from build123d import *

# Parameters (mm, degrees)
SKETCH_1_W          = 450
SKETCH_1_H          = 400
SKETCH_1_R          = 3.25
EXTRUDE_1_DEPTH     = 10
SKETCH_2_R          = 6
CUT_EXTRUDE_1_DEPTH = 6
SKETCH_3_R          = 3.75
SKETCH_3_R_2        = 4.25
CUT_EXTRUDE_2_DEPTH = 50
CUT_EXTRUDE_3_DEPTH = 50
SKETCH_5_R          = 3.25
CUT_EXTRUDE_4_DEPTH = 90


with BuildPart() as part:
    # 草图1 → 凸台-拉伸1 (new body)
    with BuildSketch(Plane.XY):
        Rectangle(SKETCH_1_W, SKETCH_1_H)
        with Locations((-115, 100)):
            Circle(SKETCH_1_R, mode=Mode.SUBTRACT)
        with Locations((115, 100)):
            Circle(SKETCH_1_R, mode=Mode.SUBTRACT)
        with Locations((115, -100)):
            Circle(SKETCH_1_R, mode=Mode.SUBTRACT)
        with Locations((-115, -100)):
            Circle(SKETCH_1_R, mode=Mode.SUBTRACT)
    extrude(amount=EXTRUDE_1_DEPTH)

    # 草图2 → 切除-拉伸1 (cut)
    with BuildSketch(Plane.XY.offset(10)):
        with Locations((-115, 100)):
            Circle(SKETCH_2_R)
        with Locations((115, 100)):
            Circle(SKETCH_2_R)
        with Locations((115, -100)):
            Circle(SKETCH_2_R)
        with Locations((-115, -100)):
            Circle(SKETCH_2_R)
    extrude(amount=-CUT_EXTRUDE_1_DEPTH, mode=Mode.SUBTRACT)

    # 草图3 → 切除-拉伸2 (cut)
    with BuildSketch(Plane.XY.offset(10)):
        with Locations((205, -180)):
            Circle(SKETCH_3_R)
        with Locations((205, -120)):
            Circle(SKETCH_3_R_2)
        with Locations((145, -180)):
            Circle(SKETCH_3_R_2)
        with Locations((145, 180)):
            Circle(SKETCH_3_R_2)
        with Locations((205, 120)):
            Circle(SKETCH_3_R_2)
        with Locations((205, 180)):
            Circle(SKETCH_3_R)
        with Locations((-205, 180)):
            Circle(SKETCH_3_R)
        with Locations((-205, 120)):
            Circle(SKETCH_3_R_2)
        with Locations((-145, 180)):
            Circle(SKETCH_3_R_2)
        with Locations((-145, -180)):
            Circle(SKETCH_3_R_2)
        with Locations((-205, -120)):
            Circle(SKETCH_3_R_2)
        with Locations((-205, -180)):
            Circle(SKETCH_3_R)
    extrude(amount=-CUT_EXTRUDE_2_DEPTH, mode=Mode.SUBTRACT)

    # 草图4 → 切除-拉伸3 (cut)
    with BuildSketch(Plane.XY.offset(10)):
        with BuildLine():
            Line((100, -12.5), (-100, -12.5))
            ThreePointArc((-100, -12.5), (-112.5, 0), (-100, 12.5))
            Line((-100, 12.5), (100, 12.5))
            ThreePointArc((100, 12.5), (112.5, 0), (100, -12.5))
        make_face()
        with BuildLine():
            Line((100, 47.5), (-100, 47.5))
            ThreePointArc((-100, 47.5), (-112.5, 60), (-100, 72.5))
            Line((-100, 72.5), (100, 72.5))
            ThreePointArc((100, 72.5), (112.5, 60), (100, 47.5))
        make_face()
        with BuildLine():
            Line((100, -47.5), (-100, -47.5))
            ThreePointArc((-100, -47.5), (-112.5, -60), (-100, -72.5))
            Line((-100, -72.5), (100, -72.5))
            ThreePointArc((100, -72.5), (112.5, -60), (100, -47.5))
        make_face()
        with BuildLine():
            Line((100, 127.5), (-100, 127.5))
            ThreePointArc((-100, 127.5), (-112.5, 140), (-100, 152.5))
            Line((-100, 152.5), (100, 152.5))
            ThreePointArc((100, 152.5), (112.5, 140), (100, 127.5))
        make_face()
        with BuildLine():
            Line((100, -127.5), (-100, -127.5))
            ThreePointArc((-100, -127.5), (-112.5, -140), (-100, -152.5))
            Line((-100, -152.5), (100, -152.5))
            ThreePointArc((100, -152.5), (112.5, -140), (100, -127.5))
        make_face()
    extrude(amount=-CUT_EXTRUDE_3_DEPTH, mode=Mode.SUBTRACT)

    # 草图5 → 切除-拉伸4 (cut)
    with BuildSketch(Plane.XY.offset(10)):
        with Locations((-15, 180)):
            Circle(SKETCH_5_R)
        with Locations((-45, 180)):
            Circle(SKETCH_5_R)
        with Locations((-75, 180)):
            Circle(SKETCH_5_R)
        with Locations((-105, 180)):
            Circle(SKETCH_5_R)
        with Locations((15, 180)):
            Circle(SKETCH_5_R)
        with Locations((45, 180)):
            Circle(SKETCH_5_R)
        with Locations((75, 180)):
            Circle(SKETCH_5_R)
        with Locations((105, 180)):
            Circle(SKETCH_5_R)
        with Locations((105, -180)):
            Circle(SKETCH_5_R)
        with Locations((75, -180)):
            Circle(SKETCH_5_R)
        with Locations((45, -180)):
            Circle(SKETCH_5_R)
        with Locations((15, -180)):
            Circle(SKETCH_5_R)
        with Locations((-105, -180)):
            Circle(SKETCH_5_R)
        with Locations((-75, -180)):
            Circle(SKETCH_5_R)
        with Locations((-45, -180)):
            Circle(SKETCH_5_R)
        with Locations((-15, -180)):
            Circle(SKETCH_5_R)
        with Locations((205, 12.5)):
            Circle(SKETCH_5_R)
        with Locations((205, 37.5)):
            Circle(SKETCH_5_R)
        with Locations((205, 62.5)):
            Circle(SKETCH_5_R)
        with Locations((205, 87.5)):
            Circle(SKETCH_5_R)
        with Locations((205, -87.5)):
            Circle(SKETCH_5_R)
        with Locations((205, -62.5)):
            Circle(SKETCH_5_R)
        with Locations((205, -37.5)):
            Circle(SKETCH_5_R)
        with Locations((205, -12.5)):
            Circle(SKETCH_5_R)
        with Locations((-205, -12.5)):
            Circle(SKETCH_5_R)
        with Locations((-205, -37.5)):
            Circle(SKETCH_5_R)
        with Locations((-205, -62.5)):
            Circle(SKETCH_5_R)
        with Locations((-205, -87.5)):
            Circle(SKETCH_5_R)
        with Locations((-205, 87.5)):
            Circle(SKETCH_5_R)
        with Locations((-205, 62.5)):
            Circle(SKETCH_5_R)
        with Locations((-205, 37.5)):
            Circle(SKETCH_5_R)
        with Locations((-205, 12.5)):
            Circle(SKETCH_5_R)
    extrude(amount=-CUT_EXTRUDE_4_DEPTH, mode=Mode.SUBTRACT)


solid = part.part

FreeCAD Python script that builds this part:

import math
import FreeCAD as App
import Part
import Sketcher
from FreeCAD import Vector

doc = App.newDocument("Part")
body = doc.addObject("PartDesign::Body", "Body")

sketch1 = body.newObject("Sketcher::SketchObject", "Sketch")
sketch1.AttachmentSupport = (doc.getObject("XY_Plane"), [""])
sketch1.MapMode = "FlatFace"
sketch1.addGeometry([
    Part.LineSegment(Vector(-225, 200, 0), Vector(-225, -200, 0)),
    Part.LineSegment(Vector(-225, -200, 0), Vector(225, -200, 0)),
    Part.LineSegment(Vector(225, -200, 0), Vector(225, 200, 0)),
    Part.LineSegment(Vector(225, 200, 0), Vector(-225, 200, 0)),
    Part.Circle(Vector(-115, -100, 0), Vector(0, 0, 1), 3.2),
    Part.Circle(Vector(115, -100, 0), Vector(0, 0, 1), 3.2),
    Part.Circle(Vector(-115, 100, 0), Vector(0, 0, 1), 3.2),
    Part.Circle(Vector(115, 100, 0), Vector(0, 0, 1), 3.2),
], False)
sketch1.addConstraint([
    Sketcher.Constraint("Coincident", 0, 2, 1, 1),
    Sketcher.Constraint("Coincident", 1, 2, 2, 1),
    Sketcher.Constraint("Coincident", 2, 2, 3, 1),
    Sketcher.Constraint("Coincident", 3, 2, 0, 1),
    Sketcher.Constraint("Vertical", 0),
    Sketcher.Constraint("Horizontal", 1),
    Sketcher.Constraint("Vertical", 2),
    Sketcher.Constraint("Horizontal", 3),
    Sketcher.Constraint("Equal", 4, 5),
    Sketcher.Constraint("Equal", 5, 6),
    Sketcher.Constraint("Equal", 6, 7),
    Sketcher.Constraint("Symmetric", 5, 3, 6, 3, -1, 1),
    Sketcher.Constraint("Symmetric", 4, 3, 7, 3, -1, 1),
    Sketcher.Constraint("Symmetric", 0, 2, 2, 2, -1, 1),
    Sketcher.Constraint("Symmetric", 4, 3, 5, 3, -2),
    Sketcher.Constraint("Diameter", 4, 6.5),
    Sketcher.Constraint("DistanceX", 1, 1, 1, 2, 450.0),
    Sketcher.Constraint("DistanceY", 0, 2, 0, 1, 400.0),
    Sketcher.Constraint("DistanceX", 4, 3, -1, 1, 115.0),
    Sketcher.Constraint("DistanceY", 4, 3, -1, 1, 100.0),
])
pad1 = body.newObject("PartDesign::Pad", "Pad")
pad1.Profile = sketch1
pad1.Length = 10

sketch2 = body.newObject("Sketcher::SketchObject", "Sketch001")
sketch2.AttachmentSupport = (doc.getObject("XY_Plane"), [""])
sketch2.MapMode = "FlatFace"
sketch2.AttachmentOffset = App.Placement(Vector(0, 0, 10), App.Rotation())
sketch2.addGeometry([
    Part.Circle(Vector(-115, 100, 0), Vector(0, 0, 1), 6),
    Part.Circle(Vector(115, 100, 0), Vector(0, 0, 1), 6),
    Part.Circle(Vector(115, -100, 0), Vector(0, 0, 1), 6),
    Part.Circle(Vector(-115, -100, 0), Vector(0, 0, 1), 6),
], False)
sketch2.addConstraint([
    Sketcher.Constraint("Equal", 0, 1),
    Sketcher.Constraint("Equal", 1, 2),
    Sketcher.Constraint("Equal", 2, 3),
    Sketcher.Constraint("Symmetric", 0, 3, 2, 3, -1, 1),
    Sketcher.Constraint("Symmetric", 1, 3, 3, 3, -1, 1),
    Sketcher.Constraint("Symmetric", 0, 3, 1, 3, -2),
    Sketcher.Constraint("Diameter", 0, 12.0),
    Sketcher.Constraint("DistanceX", 0, 3, -1, 1, 115.0),
    Sketcher.Constraint("DistanceY", -1, 1, 0, 3, 100.0),
])
pocket1 = body.newObject("PartDesign::Pocket", "Pocket")
pocket1.Profile = sketch2
pocket1.Length = 6

sketch3 = body.newObject("Sketcher::SketchObject", "Sketch002")
sketch3.AttachmentSupport = (doc.getObject("XY_Plane"), [""])
sketch3.MapMode = "FlatFace"
sketch3.AttachmentOffset = App.Placement(Vector(0, 0, 10), App.Rotation())
sketch3.addGeometry([
    Part.Circle(Vector(205, -180, 0), Vector(0, 0, 1), 3.8),
    Part.Circle(Vector(205, -120, 0), Vector(0, 0, 1), 4.2),
    Part.Circle(Vector(145, -180, 0), Vector(0, 0, 1), 4.2),
    Part.Circle(Vector(145, 180, 0), Vector(0, 0, 1), 4.2),
    Part.Circle(Vector(205, 120, 0), Vector(0, 0, 1), 4.2),
    Part.Circle(Vector(205, 180, 0), Vector(0, 0, 1), 3.8),
    Part.Circle(Vector(-205, 180, 0), Vector(0, 0, 1), 3.8),
    Part.Circle(Vector(-205, 120, 0), Vector(0, 0, 1), 4.2),
    Part.Circle(Vector(-145, 180, 0), Vector(0, 0, 1), 4.2),
    Part.Circle(Vector(-145, -180, 0), Vector(0, 0, 1), 4.2),
    Part.Circle(Vector(-205, -120, 0), Vector(0, 0, 1), 4.2),
    Part.Circle(Vector(-205, -180, 0), Vector(0, 0, 1), 3.8),
], False)
sketch3.addConstraint([
    Sketcher.Constraint("Equal", 1, 2),
    Sketcher.Constraint("Equal", 2, 3),
    Sketcher.Constraint("Equal", 3, 4),
    Sketcher.Constraint("Equal", 0, 5),
    Sketcher.Constraint("Equal", 5, 6),
    Sketcher.Constraint("Equal", 4, 7),
    Sketcher.Constraint("Equal", 7, 8),
    Sketcher.Constraint("Equal", 8, 9),
    Sketcher.Constraint("Equal", 9, 10),
    Sketcher.Constraint("Equal", 6, 11),
    Sketcher.Constraint("Symmetric", 0, 3, 6, 3, -1, 1),
    Sketcher.Constraint("Symmetric", 1, 3, 7, 3, -1, 1),
    Sketcher.Constraint("Symmetric", 2, 3, 8, 3, -1, 1),
    Sketcher.Constraint("Symmetric", 3, 3, 9, 3, -1, 1),
    Sketcher.Constraint("Symmetric", 4, 3, 10, 3, -1, 1),
    Sketcher.Constraint("Symmetric", 5, 3, 11, 3, -1, 1),
    Sketcher.Constraint("Symmetric", 5, 3, 6, 3, -2),
    Sketcher.Constraint("Symmetric", 4, 3, 7, 3, -2),
    Sketcher.Constraint("Symmetric", 3, 3, 8, 3, -2),
    Sketcher.Constraint("Horizontal", 0, 3, 2, 3),
    Sketcher.Constraint("Vertical", 0, 3, 1, 3),
    Sketcher.Constraint("Diameter", 0, 7.5),
    Sketcher.Constraint("Diameter", 1, 8.5),
    Sketcher.Constraint("DistanceX", -1, 1, 0, 3, 205.0),
    Sketcher.Constraint("DistanceY", 0, 3, -1, 1, 180.0),
    Sketcher.Constraint("DistanceY", 1, 3, -1, 1, 120.0),
    Sketcher.Constraint("DistanceX", -1, 1, 2, 3, 145.0),
])
pocket2 = body.newObject("PartDesign::Pocket", "Pocket001")
pocket2.Profile = sketch3
pocket2.Length = 50

sketch4 = body.newObject("Sketcher::SketchObject", "Sketch003")
sketch4.AttachmentSupport = (doc.getObject("XY_Plane"), [""])
sketch4.MapMode = "FlatFace"
sketch4.AttachmentOffset = App.Placement(Vector(0, 0, 10), App.Rotation())
sketch4.addGeometry([
    Part.LineSegment(Vector(-100, -12, 0), Vector(100, -12, 0)),
    Part.ArcOfCircle(Part.Circle(Vector(100, 0, 0), Vector(0, 0, 1), 12), math.radians(-90), math.radians(90)),
    Part.LineSegment(Vector(100, 12, 0), Vector(-100, 12, 0)),
    Part.ArcOfCircle(Part.Circle(Vector(-100, 0, 0), Vector(0, 0, 1), 12), math.radians(90), math.radians(270)),
    Part.LineSegment(Vector(-100, 48, 0), Vector(100, 48, 0)),
    Part.ArcOfCircle(Part.Circle(Vector(100, 60, 0), Vector(0, 0, 1), 12), math.radians(-90), math.radians(90)),
    Part.LineSegment(Vector(100, 72, 0), Vector(-100, 72, 0)),
    Part.ArcOfCircle(Part.Circle(Vector(-100, 60, 0), Vector(0, 0, 1), 12), math.radians(90), math.radians(270)),
    Part.LineSegment(Vector(100, -48, 0), Vector(-100, -48, 0)),
    Part.ArcOfCircle(Part.Circle(Vector(-100, -60, 0), Vector(0, 0, 1), 12), math.radians(90), math.radians(270)),
    Part.LineSegment(Vector(-100, -72, 0), Vector(100, -72, 0)),
    Part.ArcOfCircle(Part.Circle(Vector(100, -60, 0), Vector(0, 0, 1), 12), math.radians(-90), math.radians(90)),
    Part.LineSegment(Vector(-100, 128, 0), Vector(100, 128, 0)),
    Part.ArcOfCircle(Part.Circle(Vector(100, 140, 0), Vector(0, 0, 1), 12), math.radians(-90), math.radians(90)),
    Part.LineSegment(Vector(100, 152, 0), Vector(-100, 152, 0)),
    Part.ArcOfCircle(Part.Circle(Vector(-100, 140, 0), Vector(0, 0, 1), 12), math.radians(90), math.radians(270)),
    Part.LineSegment(Vector(100, -128, 0), Vector(-100, -128, 0)),
    Part.ArcOfCircle(Part.Circle(Vector(-100, -140, 0), Vector(0, 0, 1), 12), math.radians(90), math.radians(270)),
    Part.LineSegment(Vector(-100, -152, 0), Vector(100, -152, 0)),
    Part.ArcOfCircle(Part.Circle(Vector(100, -140, 0), Vector(0, 0, 1), 12), math.radians(-90), math.radians(90)),
], False)
sketch4.addConstraint([
    Sketcher.Constraint("Tangent", 0, 2, 1, 1),
    Sketcher.Constraint("Tangent", 1, 2, 2, 1),
    Sketcher.Constraint("Tangent", 2, 2, 3, 1),
    Sketcher.Constraint("Tangent", 3, 2, 0, 1),
    Sketcher.Constraint("Tangent", 4, 2, 5, 1),
    Sketcher.Constraint("Tangent", 5, 2, 6, 1),
    Sketcher.Constraint("Tangent", 6, 2, 7, 1),
    Sketcher.Constraint("Tangent", 7, 2, 4, 1),
    Sketcher.Constraint("Tangent", 8, 2, 9, 1),
    Sketcher.Constraint("Tangent", 9, 2, 10, 1),
    Sketcher.Constraint("Tangent", 10, 2, 11, 1),
    Sketcher.Constraint("Tangent", 11, 2, 8, 1),
    Sketcher.Constraint("Tangent", 12, 2, 13, 1),
    Sketcher.Constraint("Tangent", 13, 2, 14, 1),
    Sketcher.Constraint("Tangent", 14, 2, 15, 1),
    Sketcher.Constraint("Tangent", 15, 2, 12, 1),
    Sketcher.Constraint("Tangent", 16, 2, 17, 1),
    Sketcher.Constraint("Tangent", 17, 2, 18, 1),
    Sketcher.Constraint("Tangent", 18, 2, 19, 1),
    Sketcher.Constraint("Tangent", 19, 2, 16, 1),
    Sketcher.Constraint("Horizontal", 0),
    Sketcher.Constraint("Horizontal", 2),
    Sketcher.Constraint("Horizontal", 4),
    Sketcher.Constraint("Horizontal", 6),
    Sketcher.Constraint("Horizontal", 8),
    Sketcher.Constraint("Horizontal", 10),
    Sketcher.Constraint("Horizontal", 12),
    Sketcher.Constraint("Horizontal", 14),
    Sketcher.Constraint("Horizontal", 16),
    Sketcher.Constraint("Horizontal", 18),
    Sketcher.Constraint("Equal", 3, 5),
    Sketcher.Constraint("Equal", 7, 9),
    Sketcher.Constraint("Equal", 11, 13),
    Sketcher.Constraint("Equal", 15, 17),
    Sketcher.Constraint("Symmetric", 1, 3, 3, 3, -1, 1),
    Sketcher.Constraint("Symmetric", 5, 3, 9, 3, -1, 1),
    Sketcher.Constraint("Symmetric", 13, 3, 17, 3, -1, 1),
    Sketcher.Constraint("Vertical", 1, 3, 5, 3),
    Sketcher.Constraint("Vertical", 3, 3, 7, 3),
    Sketcher.Constraint("Vertical", 5, 3, 11, 3),
    Sketcher.Constraint("Vertical", 11, 3, 13, 3),
    Sketcher.Constraint("Vertical", 9, 3, 15, 3),
    Sketcher.Constraint("Vertical", 13, 3, 19, 3),
    Sketcher.Constraint("Radius", 1, 12.5),
    Sketcher.Constraint("DistanceX", 0, 1, 0, 2, 200.0),
    Sketcher.Constraint("DistanceY", -1, 1, 5, 3, 60.0),
    Sketcher.Constraint("DistanceY", -1, 1, 13, 3, 140.0),
])
pocket3 = body.newObject("PartDesign::Pocket", "Pocket002")
pocket3.Profile = sketch4
pocket3.Length = 50

sketch5 = body.newObject("Sketcher::SketchObject", "Sketch004")
sketch5.AttachmentSupport = (doc.getObject("XY_Plane"), [""])
sketch5.MapMode = "FlatFace"
sketch5.AttachmentOffset = App.Placement(Vector(0, 0, 10), App.Rotation())
sketch5.addGeometry([
    Part.Circle(Vector(-15, 180, 0), Vector(0, 0, 1), 3.2),
    Part.Circle(Vector(-45, 180, 0), Vector(0, 0, 1), 3.2),
    Part.Circle(Vector(-75, 180, 0), Vector(0, 0, 1), 3.2),
    Part.Circle(Vector(-105, 180, 0), Vector(0, 0, 1), 3.2),
    Part.Circle(Vector(15, 180, 0), Vector(0, 0, 1), 3.2),
    Part.Circle(Vector(45, 180, 0), Vector(0, 0, 1), 3.2),
    Part.Circle(Vector(75, 180, 0), Vector(0, 0, 1), 3.2),
    Part.Circle(Vector(105, 180, 0), Vector(0, 0, 1), 3.2),
    Part.Circle(Vector(105, -180, 0), Vector(0, 0, 1), 3.2),
    Part.Circle(Vector(75, -180, 0), Vector(0, 0, 1), 3.2),
    Part.Circle(Vector(45, -180, 0), Vector(0, 0, 1), 3.2),
    Part.Circle(Vector(15, -180, 0), Vector(0, 0, 1), 3.2),
    Part.Circle(Vector(-105, -180, 0), Vector(0, 0, 1), 3.2),
    Part.Circle(Vector(-75, -180, 0), Vector(0, 0, 1), 3.2),
    Part.Circle(Vector(-45, -180, 0), Vector(0, 0, 1), 3.2),
    Part.Circle(Vector(-15, -180, 0), Vector(0, 0, 1), 3.2),
    Part.Circle(Vector(205, 12.5, 0), Vector(0, 0, 1), 3.2),
    Part.Circle(Vector(205, 37.5, 0), Vector(0, 0, 1), 3.2),
    Part.Circle(Vector(205, 62.5, 0), Vector(0, 0, 1), 3.2),
    Part.Circle(Vector(205, 87.5, 0), Vector(0, 0, 1), 3.2),
    Part.Circle(Vector(205, -87.5, 0), Vector(0, 0, 1), 3.2),
    Part.Circle(Vector(205, -62.5, 0), Vector(0, 0, 1), 3.2),
    Part.Circle(Vector(205, -37.5, 0), Vector(0, 0, 1), 3.2),
    Part.Circle(Vector(205, -12.5, 0), Vector(0, 0, 1), 3.2),
    Part.Circle(Vector(-205, -12.5, 0), Vector(0, 0, 1), 3.2),
    Part.Circle(Vector(-205, -37.5, 0), Vector(0, 0, 1), 3.2),
    Part.Circle(Vector(-205, -62.5, 0), Vector(0, 0, 1), 3.2),
    Part.Circle(Vector(-205, -87.5, 0), Vector(0, 0, 1), 3.2),
    Part.Circle(Vector(-205, 87.5, 0), Vector(0, 0, 1), 3.2),
    Part.Circle(Vector(-205, 62.5, 0), Vector(0, 0, 1), 3.2),
    Part.Circle(Vector(-205, 37.5, 0), Vector(0, 0, 1), 3.2),
    Part.Circle(Vector(-205, 12.5, 0), Vector(0, 0, 1), 3.2),
], False)
sketch5.addConstraint([
    Sketcher.Constraint("Equal", 0, 1),
    Sketcher.Constraint("Equal", 1, 2),
    Sketcher.Constraint("Equal", 2, 3),
    Sketcher.Constraint("Equal", 3, 4),
    Sketcher.Constraint("Equal", 4, 5),
    Sketcher.Constraint("Equal", 5, 6),
    Sketcher.Constraint("Equal", 6, 7),
    Sketcher.Constraint("Equal", 7, 8),
    Sketcher.Constraint("Equal", 8, 9),
    Sketcher.Constraint("Equal", 9, 10),
    Sketcher.Constraint("Equal", 10, 11),
    Sketcher.Constraint("Equal", 11, 12),
    Sketcher.Constraint("Equal", 12, 13),
    Sketcher.Constraint("Equal", 13, 14),
    Sketcher.Constraint("Equal", 14, 15),
    Sketcher.Constraint("Equal", 15, 16),
    Sketcher.Constraint("Equal", 16, 17),
    Sketcher.Constraint("Equal", 17, 18),
    Sketcher.Constraint("Equal", 18, 19),
    Sketcher.Constraint("Equal", 19, 20),
    Sketcher.Constraint("Equal", 20, 21),
    Sketcher.Constraint("Equal", 21, 22),
    Sketcher.Constraint("Equal", 22, 23),
    Sketcher.Constraint("Equal", 23, 24),
    Sketcher.Constraint("Equal", 24, 25),
    Sketcher.Constraint("Equal", 25, 26),
    Sketcher.Constraint("Equal", 26, 27),
    Sketcher.Constraint("Equal", 27, 28),
    Sketcher.Constraint("Equal", 28, 29),
    Sketcher.Constraint("Equal", 29, 30),
    Sketcher.Constraint("Equal", 30, 31),
    Sketcher.Constraint("Symmetric", 3, 3, 8, 3, -1, 1),
    Sketcher.Constraint("Symmetric", 2, 3, 9, 3, -1, 1),
    Sketcher.Constraint("Symmetric", 1, 3, 10, 3, -1, 1),
    Sketcher.Constraint("Symmetric", 0, 3, 11, 3, -1, 1),
    Sketcher.Constraint("Symmetric", 7, 3, 12, 3, -1, 1),
    Sketcher.Constraint("Symmetric", 6, 3, 13, 3, -1, 1),
    Sketcher.Constraint("Symmetric", 5, 3, 14, 3, -1, 1),
    Sketcher.Constraint("Symmetric", 4, 3, 15, 3, -1, 1),
    Sketcher.Constraint("Symmetric", 16, 3, 24, 3, -1, 1),
    Sketcher.Constraint("Symmetric", 17, 3, 25, 3, -1, 1),
    Sketcher.Constraint("Symmetric", 18, 3, 26, 3, -1, 1),
    Sketcher.Constraint("Symmetric", 19, 3, 27, 3, -1, 1),
    Sketcher.Constraint("Symmetric", 20, 3, 28, 3, -1, 1),
    Sketcher.Constraint("Symmetric", 21, 3, 29, 3, -1, 1),
    Sketcher.Constraint("Symmetric", 22, 3, 30, 3, -1, 1),
    Sketcher.Constraint("Symmetric", 23, 3, 31, 3, -1, 1),
    Sketcher.Constraint("Symmetric", 0, 3, 4, 3, -2),
    Sketcher.Constraint("Symmetric", 1, 3, 5, 3, -2),
    Sketcher.Constraint("Symmetric", 2, 3, 6, 3, -2),
    Sketcher.Constraint("Symmetric", 3, 3, 7, 3, -2),
    Sketcher.Constraint("Symmetric", 23, 3, 24, 3, -2),
    Sketcher.Constraint("Symmetric", 22, 3, 25, 3, -2),
    Sketcher.Constraint("Symmetric", 21, 3, 26, 3, -2),
    Sketcher.Constraint("Symmetric", 20, 3, 27, 3, -2),
    Sketcher.Constraint("Horizontal", 0, 3, 1, 3),
    Sketcher.Constraint("Horizontal", 1, 3, 2, 3),
    Sketcher.Constraint("Horizontal", 2, 3, 3, 3),
    Sketcher.Constraint("Vertical", 16, 3, 17, 3),
    Sketcher.Constraint("Vertical", 17, 3, 18, 3),
    Sketcher.Constraint("Vertical", 18, 3, 19, 3),
    Sketcher.Constraint("Diameter", 0, 6.5),
    Sketcher.Constraint("DistanceX", 0, 3, -1, 1, 15.0),
    Sketcher.Constraint("DistanceY", -1, 1, 0, 3, 180.0),
    Sketcher.Constraint("DistanceX", 1, 3, -1, 1, 45.0),
    Sketcher.Constraint("DistanceX", 2, 3, -1, 1, 75.0),
    Sketcher.Constraint("DistanceX", 3, 3, -1, 1, 105.0),
    Sketcher.Constraint("DistanceX", -1, 1, 16, 3, 205.0),
    Sketcher.Constraint("DistanceY", 16, 3, 17, 3, 25.0),
    Sketcher.Constraint("DistanceY", 17, 3, 18, 3, 25.0),
    Sketcher.Constraint("DistanceY", 18, 3, 19, 3, 25.0),
    Sketcher.Constraint("DistanceY", 20, 3, 16, 3, 100.0),
])
pocket4 = body.newObject("PartDesign::Pocket", "Pocket003")
pocket4.Profile = sketch5
pocket4.Length = 90

doc.recompute()
